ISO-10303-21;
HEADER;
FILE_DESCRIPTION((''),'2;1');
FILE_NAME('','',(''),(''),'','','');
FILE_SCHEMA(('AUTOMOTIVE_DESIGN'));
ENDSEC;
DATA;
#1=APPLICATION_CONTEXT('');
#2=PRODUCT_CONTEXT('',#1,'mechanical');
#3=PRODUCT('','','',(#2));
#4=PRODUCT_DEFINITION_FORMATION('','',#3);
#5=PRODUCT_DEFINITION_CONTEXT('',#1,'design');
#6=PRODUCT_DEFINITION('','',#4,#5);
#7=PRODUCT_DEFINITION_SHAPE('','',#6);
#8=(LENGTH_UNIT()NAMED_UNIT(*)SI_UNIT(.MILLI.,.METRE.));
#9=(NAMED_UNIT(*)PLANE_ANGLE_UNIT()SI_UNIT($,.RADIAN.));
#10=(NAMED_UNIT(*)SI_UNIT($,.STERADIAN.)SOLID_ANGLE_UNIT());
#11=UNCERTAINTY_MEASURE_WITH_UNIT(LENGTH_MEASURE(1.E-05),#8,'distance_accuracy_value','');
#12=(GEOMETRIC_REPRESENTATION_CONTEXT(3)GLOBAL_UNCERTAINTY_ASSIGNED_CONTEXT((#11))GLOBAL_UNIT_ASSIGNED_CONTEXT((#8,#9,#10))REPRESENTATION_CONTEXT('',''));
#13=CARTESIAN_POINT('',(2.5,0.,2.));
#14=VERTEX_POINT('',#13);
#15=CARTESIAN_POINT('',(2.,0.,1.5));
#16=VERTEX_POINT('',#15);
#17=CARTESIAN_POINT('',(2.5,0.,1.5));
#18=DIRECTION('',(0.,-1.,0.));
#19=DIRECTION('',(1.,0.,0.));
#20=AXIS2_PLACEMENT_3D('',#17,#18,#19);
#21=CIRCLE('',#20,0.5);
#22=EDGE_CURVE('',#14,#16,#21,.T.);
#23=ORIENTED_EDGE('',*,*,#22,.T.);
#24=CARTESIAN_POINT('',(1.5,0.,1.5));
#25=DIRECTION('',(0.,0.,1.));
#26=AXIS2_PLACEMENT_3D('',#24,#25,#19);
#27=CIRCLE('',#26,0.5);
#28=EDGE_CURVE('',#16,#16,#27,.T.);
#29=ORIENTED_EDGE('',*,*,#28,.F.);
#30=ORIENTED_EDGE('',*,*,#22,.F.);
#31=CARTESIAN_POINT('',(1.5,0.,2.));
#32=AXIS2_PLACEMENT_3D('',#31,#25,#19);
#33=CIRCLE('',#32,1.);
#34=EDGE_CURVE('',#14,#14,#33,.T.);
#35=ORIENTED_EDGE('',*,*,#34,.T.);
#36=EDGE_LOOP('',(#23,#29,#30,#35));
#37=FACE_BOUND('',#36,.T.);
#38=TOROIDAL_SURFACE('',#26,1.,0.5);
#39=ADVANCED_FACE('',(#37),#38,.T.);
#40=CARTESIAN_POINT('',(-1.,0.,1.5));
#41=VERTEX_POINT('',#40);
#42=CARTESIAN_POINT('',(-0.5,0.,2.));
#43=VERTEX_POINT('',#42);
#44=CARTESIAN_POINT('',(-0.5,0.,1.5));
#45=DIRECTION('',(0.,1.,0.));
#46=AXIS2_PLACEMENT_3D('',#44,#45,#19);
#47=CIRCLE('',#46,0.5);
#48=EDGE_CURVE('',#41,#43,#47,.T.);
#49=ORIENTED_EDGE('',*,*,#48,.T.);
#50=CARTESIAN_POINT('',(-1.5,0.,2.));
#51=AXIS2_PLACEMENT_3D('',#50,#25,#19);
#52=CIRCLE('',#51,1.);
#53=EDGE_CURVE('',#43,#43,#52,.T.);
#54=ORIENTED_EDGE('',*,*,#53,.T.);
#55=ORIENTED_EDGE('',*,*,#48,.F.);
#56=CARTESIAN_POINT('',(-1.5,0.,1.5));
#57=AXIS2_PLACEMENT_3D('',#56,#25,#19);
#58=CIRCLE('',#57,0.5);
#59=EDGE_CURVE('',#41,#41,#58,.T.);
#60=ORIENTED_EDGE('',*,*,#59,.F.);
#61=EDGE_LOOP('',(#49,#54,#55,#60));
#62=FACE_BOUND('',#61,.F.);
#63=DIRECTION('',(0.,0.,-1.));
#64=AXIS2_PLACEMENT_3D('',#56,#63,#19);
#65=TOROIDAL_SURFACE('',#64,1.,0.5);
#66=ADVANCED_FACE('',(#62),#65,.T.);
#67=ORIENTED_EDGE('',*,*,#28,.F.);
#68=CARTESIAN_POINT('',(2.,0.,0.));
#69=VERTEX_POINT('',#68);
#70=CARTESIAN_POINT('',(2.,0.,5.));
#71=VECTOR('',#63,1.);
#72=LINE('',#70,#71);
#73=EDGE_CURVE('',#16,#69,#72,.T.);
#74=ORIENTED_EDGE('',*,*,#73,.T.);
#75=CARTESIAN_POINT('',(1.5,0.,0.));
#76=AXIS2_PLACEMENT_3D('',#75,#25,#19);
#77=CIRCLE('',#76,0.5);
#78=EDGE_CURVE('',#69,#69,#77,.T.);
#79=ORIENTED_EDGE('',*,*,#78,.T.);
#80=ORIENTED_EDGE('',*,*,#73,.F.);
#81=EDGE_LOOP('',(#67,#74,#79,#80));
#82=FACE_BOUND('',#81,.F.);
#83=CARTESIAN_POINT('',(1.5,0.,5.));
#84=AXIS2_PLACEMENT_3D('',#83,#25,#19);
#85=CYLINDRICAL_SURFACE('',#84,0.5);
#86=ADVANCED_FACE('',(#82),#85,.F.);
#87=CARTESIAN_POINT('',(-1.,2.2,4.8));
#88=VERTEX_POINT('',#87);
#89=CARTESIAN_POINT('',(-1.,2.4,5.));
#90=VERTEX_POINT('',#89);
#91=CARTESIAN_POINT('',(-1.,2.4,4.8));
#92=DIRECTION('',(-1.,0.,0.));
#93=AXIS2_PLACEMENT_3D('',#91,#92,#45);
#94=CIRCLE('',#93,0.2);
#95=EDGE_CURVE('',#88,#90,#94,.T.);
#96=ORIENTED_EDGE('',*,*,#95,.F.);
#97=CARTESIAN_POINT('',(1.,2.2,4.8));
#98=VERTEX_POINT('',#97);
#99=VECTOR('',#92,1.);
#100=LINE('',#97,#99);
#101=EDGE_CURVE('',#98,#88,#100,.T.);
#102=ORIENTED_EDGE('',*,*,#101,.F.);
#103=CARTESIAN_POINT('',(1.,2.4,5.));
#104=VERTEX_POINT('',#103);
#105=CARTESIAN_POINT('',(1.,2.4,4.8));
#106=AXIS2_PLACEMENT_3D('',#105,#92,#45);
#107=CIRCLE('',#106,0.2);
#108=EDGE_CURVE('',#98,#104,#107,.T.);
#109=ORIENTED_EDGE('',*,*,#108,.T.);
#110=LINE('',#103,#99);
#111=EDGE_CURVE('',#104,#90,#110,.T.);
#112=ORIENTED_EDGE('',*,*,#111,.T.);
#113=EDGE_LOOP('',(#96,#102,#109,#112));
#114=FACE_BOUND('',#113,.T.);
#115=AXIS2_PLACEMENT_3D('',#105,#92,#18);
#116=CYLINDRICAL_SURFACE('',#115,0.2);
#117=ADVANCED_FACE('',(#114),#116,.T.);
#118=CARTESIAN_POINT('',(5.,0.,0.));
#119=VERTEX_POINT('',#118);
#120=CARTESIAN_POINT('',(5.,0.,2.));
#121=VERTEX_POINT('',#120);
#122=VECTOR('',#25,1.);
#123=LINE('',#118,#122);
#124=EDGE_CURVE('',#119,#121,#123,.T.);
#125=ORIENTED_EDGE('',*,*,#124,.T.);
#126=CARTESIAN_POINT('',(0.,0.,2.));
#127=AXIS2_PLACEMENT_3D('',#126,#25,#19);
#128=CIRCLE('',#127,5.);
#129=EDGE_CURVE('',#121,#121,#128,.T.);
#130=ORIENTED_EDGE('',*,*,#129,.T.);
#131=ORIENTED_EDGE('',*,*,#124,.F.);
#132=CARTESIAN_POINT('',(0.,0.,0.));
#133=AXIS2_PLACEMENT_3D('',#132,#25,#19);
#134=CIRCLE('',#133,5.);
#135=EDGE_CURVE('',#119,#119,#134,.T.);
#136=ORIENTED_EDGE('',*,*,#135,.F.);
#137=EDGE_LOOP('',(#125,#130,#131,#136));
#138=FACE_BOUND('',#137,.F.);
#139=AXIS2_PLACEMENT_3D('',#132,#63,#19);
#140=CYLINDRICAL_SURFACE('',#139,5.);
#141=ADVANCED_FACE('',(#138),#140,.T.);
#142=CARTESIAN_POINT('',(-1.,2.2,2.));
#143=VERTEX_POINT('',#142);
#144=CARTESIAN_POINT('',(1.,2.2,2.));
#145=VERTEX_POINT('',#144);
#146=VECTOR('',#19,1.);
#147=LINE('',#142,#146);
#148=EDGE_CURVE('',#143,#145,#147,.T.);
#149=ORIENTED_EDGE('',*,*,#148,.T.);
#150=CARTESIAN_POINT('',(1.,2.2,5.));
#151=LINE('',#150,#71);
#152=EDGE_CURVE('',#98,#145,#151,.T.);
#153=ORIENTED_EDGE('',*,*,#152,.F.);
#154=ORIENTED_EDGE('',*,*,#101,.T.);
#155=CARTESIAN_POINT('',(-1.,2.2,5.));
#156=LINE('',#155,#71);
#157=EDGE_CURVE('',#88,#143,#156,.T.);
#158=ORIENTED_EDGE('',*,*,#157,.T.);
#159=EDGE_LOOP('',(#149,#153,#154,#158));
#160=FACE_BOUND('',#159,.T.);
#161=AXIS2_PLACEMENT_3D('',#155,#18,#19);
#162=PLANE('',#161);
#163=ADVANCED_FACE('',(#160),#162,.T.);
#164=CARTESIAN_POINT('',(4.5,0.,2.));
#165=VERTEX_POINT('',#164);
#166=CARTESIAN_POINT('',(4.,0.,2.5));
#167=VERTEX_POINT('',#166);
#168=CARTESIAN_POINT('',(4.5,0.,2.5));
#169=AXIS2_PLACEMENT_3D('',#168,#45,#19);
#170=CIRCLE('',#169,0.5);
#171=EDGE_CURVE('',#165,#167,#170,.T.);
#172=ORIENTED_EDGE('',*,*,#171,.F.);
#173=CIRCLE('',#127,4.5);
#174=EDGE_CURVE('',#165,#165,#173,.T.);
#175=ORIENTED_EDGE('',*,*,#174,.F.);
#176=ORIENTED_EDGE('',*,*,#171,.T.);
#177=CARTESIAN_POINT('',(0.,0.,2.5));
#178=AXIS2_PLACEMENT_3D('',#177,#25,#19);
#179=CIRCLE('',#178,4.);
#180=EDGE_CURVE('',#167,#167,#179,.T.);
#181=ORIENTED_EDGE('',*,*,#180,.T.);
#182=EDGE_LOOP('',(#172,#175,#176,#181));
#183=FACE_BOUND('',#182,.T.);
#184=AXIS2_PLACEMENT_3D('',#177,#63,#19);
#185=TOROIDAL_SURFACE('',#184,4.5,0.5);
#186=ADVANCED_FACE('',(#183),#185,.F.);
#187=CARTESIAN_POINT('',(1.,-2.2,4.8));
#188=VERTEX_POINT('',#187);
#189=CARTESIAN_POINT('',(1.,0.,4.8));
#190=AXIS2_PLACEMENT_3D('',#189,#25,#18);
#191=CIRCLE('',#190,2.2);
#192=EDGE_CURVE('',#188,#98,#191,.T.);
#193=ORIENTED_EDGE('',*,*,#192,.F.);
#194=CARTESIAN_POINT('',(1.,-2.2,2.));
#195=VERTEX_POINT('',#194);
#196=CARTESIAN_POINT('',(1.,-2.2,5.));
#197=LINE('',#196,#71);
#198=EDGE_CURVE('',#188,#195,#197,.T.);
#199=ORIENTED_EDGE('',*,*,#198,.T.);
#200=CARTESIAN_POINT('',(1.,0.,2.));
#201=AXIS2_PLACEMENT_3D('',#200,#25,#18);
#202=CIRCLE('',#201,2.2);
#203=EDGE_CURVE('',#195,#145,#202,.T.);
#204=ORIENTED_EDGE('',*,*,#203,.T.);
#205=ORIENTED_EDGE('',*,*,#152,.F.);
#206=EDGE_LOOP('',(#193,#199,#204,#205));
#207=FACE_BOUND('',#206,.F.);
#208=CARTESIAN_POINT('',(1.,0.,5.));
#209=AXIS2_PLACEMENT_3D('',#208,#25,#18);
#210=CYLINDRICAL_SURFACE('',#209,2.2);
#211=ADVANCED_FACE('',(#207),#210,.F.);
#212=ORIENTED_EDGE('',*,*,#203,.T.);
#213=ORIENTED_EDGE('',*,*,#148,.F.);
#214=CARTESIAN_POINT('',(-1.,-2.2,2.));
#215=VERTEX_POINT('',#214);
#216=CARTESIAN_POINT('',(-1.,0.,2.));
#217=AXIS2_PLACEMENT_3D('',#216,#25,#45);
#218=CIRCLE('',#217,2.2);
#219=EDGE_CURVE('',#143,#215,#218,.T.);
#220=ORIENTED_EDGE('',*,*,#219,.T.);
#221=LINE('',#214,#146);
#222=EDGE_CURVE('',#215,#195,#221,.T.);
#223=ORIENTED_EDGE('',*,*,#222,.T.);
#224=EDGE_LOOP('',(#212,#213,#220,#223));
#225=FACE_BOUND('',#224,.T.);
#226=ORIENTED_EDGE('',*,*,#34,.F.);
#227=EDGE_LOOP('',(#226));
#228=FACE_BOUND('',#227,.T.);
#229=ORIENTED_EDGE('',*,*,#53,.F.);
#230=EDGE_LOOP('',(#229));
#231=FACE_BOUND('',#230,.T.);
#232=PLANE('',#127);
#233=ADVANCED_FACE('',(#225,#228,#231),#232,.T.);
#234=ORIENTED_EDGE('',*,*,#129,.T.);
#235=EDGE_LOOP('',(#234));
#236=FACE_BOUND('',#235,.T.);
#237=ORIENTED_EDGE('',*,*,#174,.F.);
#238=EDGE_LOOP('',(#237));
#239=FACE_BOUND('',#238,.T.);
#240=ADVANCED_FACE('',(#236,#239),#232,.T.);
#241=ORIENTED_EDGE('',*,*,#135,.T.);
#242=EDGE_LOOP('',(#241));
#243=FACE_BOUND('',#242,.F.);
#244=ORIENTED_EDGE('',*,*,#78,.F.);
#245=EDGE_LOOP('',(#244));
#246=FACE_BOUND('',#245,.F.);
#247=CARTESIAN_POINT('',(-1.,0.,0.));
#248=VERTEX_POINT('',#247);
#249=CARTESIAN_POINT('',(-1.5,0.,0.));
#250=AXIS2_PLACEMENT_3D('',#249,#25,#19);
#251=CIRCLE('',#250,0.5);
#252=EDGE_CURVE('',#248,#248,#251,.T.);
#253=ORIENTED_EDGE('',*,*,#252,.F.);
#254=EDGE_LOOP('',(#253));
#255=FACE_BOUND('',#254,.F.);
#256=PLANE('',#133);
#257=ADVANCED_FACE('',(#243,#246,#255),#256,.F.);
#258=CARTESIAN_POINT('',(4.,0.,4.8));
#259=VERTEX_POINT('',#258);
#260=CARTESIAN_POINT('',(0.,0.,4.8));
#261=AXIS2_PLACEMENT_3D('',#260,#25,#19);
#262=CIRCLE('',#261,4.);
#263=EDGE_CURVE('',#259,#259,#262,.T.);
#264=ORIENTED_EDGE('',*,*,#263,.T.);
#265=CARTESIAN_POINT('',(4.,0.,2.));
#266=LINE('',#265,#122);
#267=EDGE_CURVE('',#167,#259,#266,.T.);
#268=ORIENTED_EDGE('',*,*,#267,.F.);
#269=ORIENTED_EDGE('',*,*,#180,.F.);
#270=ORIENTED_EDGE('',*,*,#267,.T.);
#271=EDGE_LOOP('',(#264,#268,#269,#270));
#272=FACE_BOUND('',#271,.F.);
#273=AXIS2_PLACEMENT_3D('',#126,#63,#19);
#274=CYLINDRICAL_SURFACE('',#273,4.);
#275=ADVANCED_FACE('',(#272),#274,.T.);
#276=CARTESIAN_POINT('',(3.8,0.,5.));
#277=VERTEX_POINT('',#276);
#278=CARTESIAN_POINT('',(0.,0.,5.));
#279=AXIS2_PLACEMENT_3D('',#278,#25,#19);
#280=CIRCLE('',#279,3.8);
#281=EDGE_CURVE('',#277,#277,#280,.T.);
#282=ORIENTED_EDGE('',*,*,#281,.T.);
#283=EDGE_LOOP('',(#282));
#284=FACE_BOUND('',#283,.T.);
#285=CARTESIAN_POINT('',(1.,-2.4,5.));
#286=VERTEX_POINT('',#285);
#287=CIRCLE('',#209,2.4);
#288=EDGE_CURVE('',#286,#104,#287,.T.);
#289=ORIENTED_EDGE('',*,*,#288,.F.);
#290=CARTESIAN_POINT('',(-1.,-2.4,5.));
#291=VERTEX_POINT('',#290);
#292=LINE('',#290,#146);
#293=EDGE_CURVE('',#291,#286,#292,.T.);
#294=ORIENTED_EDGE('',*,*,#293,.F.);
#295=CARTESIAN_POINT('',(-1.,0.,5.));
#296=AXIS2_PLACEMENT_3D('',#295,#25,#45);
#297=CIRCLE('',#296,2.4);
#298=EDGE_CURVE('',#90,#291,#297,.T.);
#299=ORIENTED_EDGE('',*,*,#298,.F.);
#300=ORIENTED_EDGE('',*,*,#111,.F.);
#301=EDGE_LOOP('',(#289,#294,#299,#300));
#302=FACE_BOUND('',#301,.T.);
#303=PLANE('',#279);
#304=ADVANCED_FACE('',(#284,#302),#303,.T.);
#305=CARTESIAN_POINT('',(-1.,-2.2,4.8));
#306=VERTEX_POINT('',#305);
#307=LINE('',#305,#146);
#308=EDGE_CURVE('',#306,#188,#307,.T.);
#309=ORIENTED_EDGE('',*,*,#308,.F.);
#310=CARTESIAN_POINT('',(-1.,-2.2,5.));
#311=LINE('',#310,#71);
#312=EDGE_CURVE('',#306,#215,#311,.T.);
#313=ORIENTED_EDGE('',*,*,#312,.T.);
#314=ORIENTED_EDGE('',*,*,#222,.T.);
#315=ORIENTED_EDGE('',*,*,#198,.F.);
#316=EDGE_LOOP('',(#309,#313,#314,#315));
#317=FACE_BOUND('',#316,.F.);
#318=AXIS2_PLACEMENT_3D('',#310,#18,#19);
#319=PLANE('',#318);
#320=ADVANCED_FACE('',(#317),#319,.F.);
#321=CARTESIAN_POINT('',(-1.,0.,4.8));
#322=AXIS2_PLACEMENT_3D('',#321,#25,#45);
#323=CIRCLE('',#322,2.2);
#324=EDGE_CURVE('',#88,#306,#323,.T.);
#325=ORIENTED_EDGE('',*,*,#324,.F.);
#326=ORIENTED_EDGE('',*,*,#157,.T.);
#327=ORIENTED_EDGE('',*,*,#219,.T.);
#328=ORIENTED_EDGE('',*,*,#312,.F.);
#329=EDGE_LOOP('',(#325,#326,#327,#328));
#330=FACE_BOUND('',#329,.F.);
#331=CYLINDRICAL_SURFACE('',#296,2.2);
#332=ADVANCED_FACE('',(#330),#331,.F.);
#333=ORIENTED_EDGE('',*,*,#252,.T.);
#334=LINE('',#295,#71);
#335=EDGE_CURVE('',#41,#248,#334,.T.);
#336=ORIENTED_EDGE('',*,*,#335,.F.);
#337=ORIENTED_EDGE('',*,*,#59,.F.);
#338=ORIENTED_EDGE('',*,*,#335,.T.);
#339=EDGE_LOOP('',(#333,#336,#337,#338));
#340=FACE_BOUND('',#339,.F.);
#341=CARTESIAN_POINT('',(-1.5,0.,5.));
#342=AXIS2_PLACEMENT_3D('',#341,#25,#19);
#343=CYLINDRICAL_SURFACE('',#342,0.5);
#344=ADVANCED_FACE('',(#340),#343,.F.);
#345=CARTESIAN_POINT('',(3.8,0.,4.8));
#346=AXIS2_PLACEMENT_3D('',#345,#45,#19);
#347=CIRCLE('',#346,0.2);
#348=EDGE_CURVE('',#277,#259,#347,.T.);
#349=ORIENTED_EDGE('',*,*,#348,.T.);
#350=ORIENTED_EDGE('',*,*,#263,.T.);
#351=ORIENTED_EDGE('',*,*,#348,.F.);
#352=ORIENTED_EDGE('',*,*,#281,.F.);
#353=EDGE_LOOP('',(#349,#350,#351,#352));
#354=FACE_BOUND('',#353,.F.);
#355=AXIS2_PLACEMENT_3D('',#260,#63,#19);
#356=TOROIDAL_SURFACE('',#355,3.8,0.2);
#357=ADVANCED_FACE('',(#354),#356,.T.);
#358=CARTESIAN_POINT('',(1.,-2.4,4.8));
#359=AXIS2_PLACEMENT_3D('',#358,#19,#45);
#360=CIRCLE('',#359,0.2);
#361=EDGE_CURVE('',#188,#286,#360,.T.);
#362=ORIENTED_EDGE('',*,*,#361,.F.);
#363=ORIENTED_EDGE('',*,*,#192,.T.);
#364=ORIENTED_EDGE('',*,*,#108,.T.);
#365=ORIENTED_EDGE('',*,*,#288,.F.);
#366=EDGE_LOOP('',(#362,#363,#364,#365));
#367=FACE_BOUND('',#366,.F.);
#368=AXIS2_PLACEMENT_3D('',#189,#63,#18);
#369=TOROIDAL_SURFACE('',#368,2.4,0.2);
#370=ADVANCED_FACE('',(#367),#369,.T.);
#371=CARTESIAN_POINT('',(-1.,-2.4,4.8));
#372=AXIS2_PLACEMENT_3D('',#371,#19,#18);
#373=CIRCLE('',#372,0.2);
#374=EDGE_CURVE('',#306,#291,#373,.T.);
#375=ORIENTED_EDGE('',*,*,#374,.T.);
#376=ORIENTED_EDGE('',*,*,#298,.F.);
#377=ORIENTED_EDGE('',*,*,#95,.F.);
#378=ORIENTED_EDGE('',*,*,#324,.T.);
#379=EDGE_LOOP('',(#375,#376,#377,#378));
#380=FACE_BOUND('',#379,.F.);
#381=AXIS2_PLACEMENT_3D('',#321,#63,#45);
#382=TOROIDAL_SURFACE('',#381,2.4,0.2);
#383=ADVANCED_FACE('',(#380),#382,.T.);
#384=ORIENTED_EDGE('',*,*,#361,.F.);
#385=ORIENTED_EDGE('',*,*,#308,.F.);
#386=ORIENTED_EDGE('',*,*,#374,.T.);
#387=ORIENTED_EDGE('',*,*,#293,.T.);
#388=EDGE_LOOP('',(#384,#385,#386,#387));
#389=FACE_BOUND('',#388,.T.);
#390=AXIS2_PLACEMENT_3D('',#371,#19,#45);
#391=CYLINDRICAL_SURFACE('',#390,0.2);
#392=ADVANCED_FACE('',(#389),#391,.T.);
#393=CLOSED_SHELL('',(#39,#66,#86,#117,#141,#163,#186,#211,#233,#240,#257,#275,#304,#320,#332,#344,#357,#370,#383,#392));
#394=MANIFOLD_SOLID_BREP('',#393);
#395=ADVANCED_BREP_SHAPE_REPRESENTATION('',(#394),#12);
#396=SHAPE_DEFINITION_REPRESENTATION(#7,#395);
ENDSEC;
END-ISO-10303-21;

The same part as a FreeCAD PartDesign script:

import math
import FreeCAD as App
import Part
import Sketcher
from FreeCAD import Vector


def edges_at(feature, points):
    """Names of the edges that pass closest to the given points."""
    edges = feature.Shape.Edges
    near = lambda p: min(range(len(edges)), key=lambda i: edges[i].distToShape(Part.Vertex(*p))[0])
    return sorted({f"Edge{near(p) + 1}" for p in points})

doc = App.newDocument("Part")
body = doc.addObject("PartDesign::Body", "Body")

# Sketch on XY plane
sketch1 = body.newObject("Sketcher::SketchObject", "Sketch")
sketch1.AttachmentSupport = (doc.getObject("XY_Plane"), [""])
sketch1.MapMode = "FlatFace"
sketch1.addGeometry(Part.Circle(Vector(0, 0, 0), Vector(0, 0, 1), 5), False)
sketch1.addConstraint(Sketcher.Constraint("Coincident", 0, 3, -1, 1))
sketch1.addConstraint(Sketcher.Constraint("Diameter", 0, 10.0))
pad1 = body.newObject("PartDesign::Pad", "Pad")
pad1.Profile = sketch1
pad1.Length = 2

# Sketch on XY plane
sketch2 = body.newObject("Sketcher::SketchObject", "Sketch001")
sketch2.AttachmentSupport = (doc.getObject("XY_Plane"), [""])
sketch2.MapMode = "FlatFace"
sketch2.AttachmentOffset = App.Placement(Vector(0, 0, 2), App.Rotation())
sketch2.addGeometry(Part.Circle(Vector(0, 0, 0), Vector(0, 0, 1), 4), False)
sketch2.addConstraint(Sketcher.Constraint("Coincident", 0, 3, -1, 1))
sketch2.addConstraint(Sketcher.Constraint("Diameter", 0, 8.0))
pad2 = body.newObject("PartDesign::Pad", "Pad001")
pad2.Profile = sketch2
pad2.Length = 3

# Sketch on XY plane
sketch3 = body.newObject("Sketcher::SketchObject", "Sketch002")
sketch3.AttachmentSupport = (doc.getObject("XY_Plane"), [""])
sketch3.MapMode = "FlatFace"
sketch3.AttachmentOffset = App.Placement(Vector(0, 0, 5), App.Rotation())
sketch3.addGeometry(Part.ArcOfCircle(Part.Circle(Vector(-1, 0, 0), Vector(0, 0, 1), 2.2), math.radians(90), math.radians(270)), False)
sketch3.addGeometry(Part.LineSegment(Vector(-1, -2.2, 0), Vector(1, -2.2, 0)), False)
sketch3.addGeometry(Part.ArcOfCircle(Part.Circle(Vector(1, 0, 0), Vector(0, 0, 1), 2.2), math.radians(-90), math.radians(90)), False)
sketch3.addGeometry(Part.LineSegment(Vector(1, 2.2, 0), Vector(-1, 2.2, 0)), False)
sketch3.addConstraint(Sketcher.Constraint("Tangent", 0, 2, 1, 1))
sketch3.addConstraint(Sketcher.Constraint("Tangent", 1, 2, 2, 1))
sketch3.addConstraint(Sketcher.Constraint("Tangent", 2, 2, 3, 1))
sketch3.addConstraint(Sketcher.Constraint("Tangent", 3, 2, 0, 1))
sketch3.addConstraint(Sketcher.Constraint("Horizontal", 1))
sketch3.addConstraint(Sketcher.Constraint("Horizontal", 3))
sketch3.addConstraint(Sketcher.Constraint("Symmetric", 0, 3, 2, 3, -1, 1))
sketch3.addConstraint(Sketcher.Constraint("Radius", 0, 2.2))
sketch3.addConstraint(Sketcher.Constraint("DistanceX", 1, 1, 1, 2, 2.0))
pocket1 = body.newObject("PartDesign::Pocket", "Pocket")
pocket1.Profile = sketch3
pocket1.Length = 3

# Sketch on XY plane
sketch4 = body.newObject("Sketcher::SketchObject", "Sketch003")
sketch4.AttachmentSupport = (doc.getObject("XY_Plane"), [""])
sketch4.MapMode = "FlatFace"
sketch4.AttachmentOffset = App.Placement(Vector(0, 0, 5), App.Rotation())
sketch4.addGeometry(Part.Circle(Vector(-1.5, 0, 0), Vector(0, 0, 1), 0.5), False)
sketch4.addGeometry(Part.Circle(Vector(1.5, 0, 0), Vector(0, 0, 1), 0.5), False)
sketch4.addConstraint(Sketcher.Constraint("Equal", 0, 1))
sketch4.addConstraint(Sketcher.Constraint("Symmetric", 0, 3, 1, 3, -1, 1))
sketch4.addConstraint(Sketcher.Constraint("PointOnObject", 0, 3, -1))
sketch4.addConstraint(Sketcher.Constraint("Diameter", 0, 1.0))
sketch4.addConstraint(Sketcher.Constraint("DistanceX", 0, 3, 1, 3, 3.0))
pocket2 = body.newObject("PartDesign::Pocket", "Pocket001")
pocket2.Profile = sketch4
pocket2.Type = "ThroughAll"
doc.recompute()

fillet = body.newObject("PartDesign::Fillet", "Fillet")
fillet.Base = (pocket2, edges_at(pocket2, [(-4, 0, 2)]))
fillet.Radius = 0.5
doc.recompute()

fillet2 = body.newObject("PartDesign::Fillet", "Fillet001")
fillet2.Base = (fillet, edges_at(fillet, [(-2, 0, 2)]))
fillet2.Radius = 0.5
doc.recompute()

fillet3 = body.newObject("PartDesign::Fillet", "Fillet002")
fillet3.Base = (fillet2, edges_at(fillet2, [(1, 0, 2)]))
fillet3.Radius = 0.5
doc.recompute()

fillet4 = body.newObject("PartDesign::Fillet", "Fillet003")
fillet4.Base = (fillet3, edges_at(fillet3, [
    (-4, 0, 5),
    (-3.2, 0, 5),
    (0, -2.2, 5),
    (3.2, 0, 5),
    (0, 2.2, 5),
]))
fillet4.Radius = 0.2

doc.recompute()
